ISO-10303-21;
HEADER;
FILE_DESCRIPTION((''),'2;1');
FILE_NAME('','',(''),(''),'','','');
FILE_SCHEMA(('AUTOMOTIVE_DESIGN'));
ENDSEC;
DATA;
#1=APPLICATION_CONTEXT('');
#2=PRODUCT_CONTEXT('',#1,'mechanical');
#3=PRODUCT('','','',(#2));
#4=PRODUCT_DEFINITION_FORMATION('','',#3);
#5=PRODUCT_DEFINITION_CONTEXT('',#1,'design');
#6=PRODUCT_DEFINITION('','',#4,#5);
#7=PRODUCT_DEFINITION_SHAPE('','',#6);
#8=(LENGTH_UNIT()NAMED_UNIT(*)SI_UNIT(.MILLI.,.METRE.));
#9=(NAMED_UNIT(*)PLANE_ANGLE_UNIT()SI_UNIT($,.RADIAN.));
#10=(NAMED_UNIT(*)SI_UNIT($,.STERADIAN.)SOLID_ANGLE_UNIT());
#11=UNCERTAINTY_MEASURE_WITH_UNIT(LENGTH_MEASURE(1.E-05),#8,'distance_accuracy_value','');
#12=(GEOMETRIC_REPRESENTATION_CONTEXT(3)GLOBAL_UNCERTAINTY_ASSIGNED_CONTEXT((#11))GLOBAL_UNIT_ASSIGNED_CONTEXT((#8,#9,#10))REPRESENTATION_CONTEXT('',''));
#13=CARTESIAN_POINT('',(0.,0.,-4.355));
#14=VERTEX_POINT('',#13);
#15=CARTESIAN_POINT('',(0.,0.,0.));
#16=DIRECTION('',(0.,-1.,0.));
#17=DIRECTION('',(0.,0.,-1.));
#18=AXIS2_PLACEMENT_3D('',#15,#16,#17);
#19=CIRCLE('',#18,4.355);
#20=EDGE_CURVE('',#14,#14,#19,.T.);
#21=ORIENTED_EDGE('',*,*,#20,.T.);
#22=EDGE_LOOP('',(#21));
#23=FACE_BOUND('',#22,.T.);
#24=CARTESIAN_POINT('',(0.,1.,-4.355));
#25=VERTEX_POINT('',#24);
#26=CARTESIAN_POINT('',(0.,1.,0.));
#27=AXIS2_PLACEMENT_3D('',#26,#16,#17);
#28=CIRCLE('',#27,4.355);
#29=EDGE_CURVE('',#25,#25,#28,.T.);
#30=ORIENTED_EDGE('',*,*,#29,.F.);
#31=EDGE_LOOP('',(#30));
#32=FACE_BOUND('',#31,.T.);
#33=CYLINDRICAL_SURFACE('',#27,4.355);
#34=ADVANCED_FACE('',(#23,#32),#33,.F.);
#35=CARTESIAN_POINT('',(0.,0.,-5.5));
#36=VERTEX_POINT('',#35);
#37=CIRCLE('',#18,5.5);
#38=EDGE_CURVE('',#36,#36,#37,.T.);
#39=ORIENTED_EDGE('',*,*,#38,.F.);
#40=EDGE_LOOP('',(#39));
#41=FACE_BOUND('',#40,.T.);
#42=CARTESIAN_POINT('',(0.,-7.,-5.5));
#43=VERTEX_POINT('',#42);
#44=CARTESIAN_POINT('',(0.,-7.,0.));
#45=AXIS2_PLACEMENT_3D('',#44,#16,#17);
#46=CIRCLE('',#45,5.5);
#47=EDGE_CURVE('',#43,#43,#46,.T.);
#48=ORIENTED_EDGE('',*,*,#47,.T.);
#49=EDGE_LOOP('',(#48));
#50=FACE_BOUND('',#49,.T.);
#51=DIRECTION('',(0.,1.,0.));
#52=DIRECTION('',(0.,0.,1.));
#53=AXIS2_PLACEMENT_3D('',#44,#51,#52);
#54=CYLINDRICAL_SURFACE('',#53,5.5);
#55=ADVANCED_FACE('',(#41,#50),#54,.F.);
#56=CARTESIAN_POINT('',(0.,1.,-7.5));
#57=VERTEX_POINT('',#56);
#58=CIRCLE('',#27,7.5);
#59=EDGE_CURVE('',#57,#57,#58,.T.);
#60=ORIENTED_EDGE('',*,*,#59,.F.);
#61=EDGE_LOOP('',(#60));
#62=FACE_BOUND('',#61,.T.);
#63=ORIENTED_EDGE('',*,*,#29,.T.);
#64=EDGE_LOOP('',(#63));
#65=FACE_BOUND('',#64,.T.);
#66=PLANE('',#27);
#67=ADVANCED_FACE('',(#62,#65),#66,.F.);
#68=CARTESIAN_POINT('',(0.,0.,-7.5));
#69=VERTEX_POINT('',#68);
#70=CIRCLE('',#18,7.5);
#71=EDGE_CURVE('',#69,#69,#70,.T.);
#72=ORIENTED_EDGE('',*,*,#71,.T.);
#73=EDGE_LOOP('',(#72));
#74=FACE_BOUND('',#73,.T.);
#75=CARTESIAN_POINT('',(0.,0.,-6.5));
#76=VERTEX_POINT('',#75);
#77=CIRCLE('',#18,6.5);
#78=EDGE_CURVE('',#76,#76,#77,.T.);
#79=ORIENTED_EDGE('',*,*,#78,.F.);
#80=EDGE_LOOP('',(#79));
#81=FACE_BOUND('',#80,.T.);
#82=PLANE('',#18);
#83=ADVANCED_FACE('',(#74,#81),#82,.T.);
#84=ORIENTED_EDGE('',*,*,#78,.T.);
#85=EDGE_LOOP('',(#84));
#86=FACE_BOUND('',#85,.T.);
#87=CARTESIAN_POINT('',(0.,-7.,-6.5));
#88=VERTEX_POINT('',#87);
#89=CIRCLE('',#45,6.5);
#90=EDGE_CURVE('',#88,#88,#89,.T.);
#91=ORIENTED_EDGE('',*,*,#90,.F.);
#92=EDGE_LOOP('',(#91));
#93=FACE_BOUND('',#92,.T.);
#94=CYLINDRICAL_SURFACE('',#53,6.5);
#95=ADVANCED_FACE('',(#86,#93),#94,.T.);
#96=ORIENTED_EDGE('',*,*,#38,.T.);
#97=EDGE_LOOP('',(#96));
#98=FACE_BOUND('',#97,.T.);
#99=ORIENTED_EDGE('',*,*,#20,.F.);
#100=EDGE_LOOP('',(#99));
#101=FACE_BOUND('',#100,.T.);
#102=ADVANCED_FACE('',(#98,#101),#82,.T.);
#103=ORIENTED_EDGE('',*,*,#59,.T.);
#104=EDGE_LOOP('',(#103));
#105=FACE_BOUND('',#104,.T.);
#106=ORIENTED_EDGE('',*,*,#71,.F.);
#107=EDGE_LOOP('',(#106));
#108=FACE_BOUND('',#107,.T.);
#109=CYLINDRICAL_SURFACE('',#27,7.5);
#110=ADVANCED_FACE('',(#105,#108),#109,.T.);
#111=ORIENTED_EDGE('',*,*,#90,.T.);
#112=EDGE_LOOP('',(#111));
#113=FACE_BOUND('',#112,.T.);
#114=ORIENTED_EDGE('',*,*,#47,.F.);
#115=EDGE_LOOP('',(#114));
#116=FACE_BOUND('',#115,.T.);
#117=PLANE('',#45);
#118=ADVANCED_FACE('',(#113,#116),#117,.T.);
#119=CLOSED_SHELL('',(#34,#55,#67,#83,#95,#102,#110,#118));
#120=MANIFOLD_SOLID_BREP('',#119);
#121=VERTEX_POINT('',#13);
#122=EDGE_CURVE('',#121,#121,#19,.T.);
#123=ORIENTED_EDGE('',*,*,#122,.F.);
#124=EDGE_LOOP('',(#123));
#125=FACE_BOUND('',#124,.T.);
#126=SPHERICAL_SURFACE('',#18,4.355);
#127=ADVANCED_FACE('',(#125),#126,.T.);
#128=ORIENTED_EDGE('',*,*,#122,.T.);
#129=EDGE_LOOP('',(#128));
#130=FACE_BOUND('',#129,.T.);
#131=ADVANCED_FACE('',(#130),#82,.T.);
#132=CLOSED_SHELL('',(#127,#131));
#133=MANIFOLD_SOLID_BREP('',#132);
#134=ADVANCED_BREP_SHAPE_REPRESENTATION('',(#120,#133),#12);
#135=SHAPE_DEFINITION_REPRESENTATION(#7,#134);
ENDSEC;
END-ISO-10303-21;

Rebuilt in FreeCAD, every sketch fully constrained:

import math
import FreeCAD as App
import Part
import Sketcher

doc = App.newDocument("Part")
body = doc.addObject("PartDesign::Body", "Body")

# Sketch on XZ plane
sketch1 = doc.addObject("Sketcher::SketchObject", "Sketch")
body.addObject(sketch1)
sketch1.AttachmentSupport = (doc.XZ_Plane, [""])
sketch1.MapMode = "FlatFace"
sketch1.addGeometry([
    Part.LineSegment(App.Vector(-4.355, 0, 0), App.Vector(4.355, 0, 0)),
    Part.ArcOfCircle(Part.Circle(App.Vector(0, 0, 0), App.Vector(0, 0, 1), 4.355), math.radians(180), math.radians(360)),
], False)
sketch1.addConstraint([
    Sketcher.Constraint("Coincident", 0, 1, 1, 1),
    Sketcher.Constraint("Coincident", 1, 2, 0, 2),
    Sketcher.Constraint("Horizontal", 0),
    Sketcher.Constraint("Coincident", 1, 3, -1, 1),
    Sketcher.Constraint("PointOnObject", 0, 1, -1),
    Sketcher.Constraint("Radius", 1, 4.355),
])
revolution = doc.addObject("PartDesign::Revolution", "Revolution")
body.addObject(revolution)
revolution.Profile = sketch1
revolution.ReferenceAxis = (sketch1, ["H_Axis"])
revolution.Angle = 180
body2 = doc.addObject("PartDesign::Body", "Body001")

# Sketch on XZ plane
sketch2 = doc.addObject("Sketcher::SketchObject", "Sketch001")
body2.addObject(sketch2)
sketch2.AttachmentSupport = (doc.getObject("XZ_Plane001"), [""])
sketch2.MapMode = "FlatFace"
sketch2.addGeometry([
    Part.Circle(App.Vector(0, 0, 0), App.Vector(0, 0, 1), 7.5),
    Part.Circle(App.Vector(0, 0, 0), App.Vector(0, 0, 1), 4.355),
], False)
sketch2.addConstraint([
    Sketcher.Constraint("Coincident", 0, 3, -1, 1),
    Sketcher.Constraint("Coincident", 1, 3, -1, 1),
    Sketcher.Constraint("Diameter", 0, 15.0),
    Sketcher.Constraint("Diameter", 1, 8.71),
])
pad1 = doc.addObject("PartDesign::Pad", "Pad")
body2.addObject(pad1)
pad1.Profile = sketch2
pad1.Length = 1
pad1.Reversed = True

# Sketch on XZ plane
sketch3 = doc.addObject("Sketcher::SketchObject", "Sketch002")
body2.addObject(sketch3)
sketch3.AttachmentSupport = (doc.getObject("XZ_Plane001"), [""])
sketch3.MapMode = "FlatFace"
sketch3.addGeometry([
    Part.Circle(App.Vector(0, 0, 0), App.Vector(0, 0, 1), 6.5),
    Part.Circle(App.Vector(0, 0, 0), App.Vector(0, 0, 1), 5.5),
], False)
sketch3.addConstraint([
    Sketcher.Constraint("Coincident", 0, 3, -1, 1),
    Sketcher.Constraint("Coincident", 1, 3, -1, 1),
    Sketcher.Constraint("Diameter", 0, 13.0),
    Sketcher.Constraint("Diameter", 1, 11.0),
])
pad2 = doc.addObject("PartDesign::Pad", "Pad001")
body2.addObject(pad2)
pad2.Profile = sketch3
pad2.Length = 7

doc.recompute()
